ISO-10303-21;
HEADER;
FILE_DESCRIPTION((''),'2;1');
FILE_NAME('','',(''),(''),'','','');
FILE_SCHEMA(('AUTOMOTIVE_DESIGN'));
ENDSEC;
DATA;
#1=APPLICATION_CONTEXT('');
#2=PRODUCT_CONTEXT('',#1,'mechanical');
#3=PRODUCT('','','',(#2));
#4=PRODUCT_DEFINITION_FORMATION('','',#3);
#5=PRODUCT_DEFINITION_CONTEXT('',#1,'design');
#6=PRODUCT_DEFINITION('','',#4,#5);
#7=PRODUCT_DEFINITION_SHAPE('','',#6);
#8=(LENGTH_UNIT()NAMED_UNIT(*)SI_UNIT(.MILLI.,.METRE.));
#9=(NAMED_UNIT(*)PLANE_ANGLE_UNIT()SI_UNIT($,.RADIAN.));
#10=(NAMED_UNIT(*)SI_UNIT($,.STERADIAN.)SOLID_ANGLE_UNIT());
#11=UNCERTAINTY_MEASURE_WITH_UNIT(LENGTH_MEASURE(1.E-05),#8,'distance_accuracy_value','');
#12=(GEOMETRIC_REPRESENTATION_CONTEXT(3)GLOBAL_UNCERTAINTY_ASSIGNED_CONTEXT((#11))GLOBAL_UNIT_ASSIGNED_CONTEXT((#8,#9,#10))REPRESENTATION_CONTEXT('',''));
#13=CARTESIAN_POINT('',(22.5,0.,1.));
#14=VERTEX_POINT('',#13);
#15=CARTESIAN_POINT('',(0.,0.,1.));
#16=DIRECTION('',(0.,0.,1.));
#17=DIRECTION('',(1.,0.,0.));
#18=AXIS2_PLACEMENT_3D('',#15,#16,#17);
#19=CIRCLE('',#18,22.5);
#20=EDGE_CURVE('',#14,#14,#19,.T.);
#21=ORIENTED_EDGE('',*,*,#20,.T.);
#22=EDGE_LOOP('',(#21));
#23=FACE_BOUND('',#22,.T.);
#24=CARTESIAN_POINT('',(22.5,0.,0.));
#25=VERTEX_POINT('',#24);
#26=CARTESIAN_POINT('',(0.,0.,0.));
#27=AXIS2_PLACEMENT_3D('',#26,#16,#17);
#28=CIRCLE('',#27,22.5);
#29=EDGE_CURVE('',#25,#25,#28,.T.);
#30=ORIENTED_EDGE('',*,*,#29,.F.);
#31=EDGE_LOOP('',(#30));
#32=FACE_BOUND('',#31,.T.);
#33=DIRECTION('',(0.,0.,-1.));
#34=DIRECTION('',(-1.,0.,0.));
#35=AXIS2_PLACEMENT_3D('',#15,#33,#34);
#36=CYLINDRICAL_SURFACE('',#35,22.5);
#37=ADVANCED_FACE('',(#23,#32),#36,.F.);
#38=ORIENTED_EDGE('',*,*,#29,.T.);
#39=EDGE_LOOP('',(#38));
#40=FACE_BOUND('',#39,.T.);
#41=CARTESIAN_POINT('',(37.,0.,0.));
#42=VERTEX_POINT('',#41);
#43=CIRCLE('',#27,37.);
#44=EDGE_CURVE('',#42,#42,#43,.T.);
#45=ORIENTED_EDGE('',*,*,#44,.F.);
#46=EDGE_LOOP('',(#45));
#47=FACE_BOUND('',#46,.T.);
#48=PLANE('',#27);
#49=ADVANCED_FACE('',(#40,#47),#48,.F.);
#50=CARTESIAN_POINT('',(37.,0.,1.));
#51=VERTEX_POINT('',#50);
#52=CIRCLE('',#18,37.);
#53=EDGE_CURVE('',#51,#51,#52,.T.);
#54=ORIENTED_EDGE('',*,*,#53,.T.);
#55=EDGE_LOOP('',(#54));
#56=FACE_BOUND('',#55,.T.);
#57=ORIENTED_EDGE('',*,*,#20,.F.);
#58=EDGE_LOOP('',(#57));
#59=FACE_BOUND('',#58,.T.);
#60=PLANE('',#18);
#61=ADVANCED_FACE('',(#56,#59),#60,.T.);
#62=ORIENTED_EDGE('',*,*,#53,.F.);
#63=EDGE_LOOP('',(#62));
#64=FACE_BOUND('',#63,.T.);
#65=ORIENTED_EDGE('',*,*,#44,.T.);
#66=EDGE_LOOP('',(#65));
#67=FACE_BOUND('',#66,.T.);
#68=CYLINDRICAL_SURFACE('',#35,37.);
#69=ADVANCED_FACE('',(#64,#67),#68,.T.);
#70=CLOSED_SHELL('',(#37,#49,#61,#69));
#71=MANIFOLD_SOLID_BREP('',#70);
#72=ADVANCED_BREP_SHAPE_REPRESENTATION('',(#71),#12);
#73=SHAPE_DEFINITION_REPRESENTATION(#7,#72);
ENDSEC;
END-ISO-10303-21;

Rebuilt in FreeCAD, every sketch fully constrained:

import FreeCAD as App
import Part
import Sketcher
Q = App.Units.Quantity

doc = App.newDocument("Part")
body = doc.addObject("PartDesign::Body", "Body")

sketch1 = doc.addObject("Sketcher::SketchObject", "Sketch")
body.addObject(sketch1)
sketch1.AttachmentSupport = (doc.XY_Plane, [""])
sketch1.MapMode = "FlatFace"
sketch1.addGeometry(Part.Circle(App.Vector(0, 0, 0), App.Vector(0, 0, 1), 37), False)
sketch1.addGeometry(Part.Circle(App.Vector(0, 0, 0), App.Vector(0, 0, 1), 22), False)
sketch1.addConstraint(Sketcher.Constraint("Coincident", 0, 3, -1, 1))
sketch1.addConstraint(Sketcher.Constraint("Coincident", 1, 3, -1, 1))
sketch1.addConstraint(Sketcher.Constraint("Diameter", 0, Q("74 mm")))
sketch1.addConstraint(Sketcher.Constraint("Diameter", 1, Q("45 mm")))
pad1 = doc.addObject("PartDesign::Pad", "Pad")
body.addObject(pad1)
pad1.Profile = sketch1
pad1.Length = 1

doc.recompute()
